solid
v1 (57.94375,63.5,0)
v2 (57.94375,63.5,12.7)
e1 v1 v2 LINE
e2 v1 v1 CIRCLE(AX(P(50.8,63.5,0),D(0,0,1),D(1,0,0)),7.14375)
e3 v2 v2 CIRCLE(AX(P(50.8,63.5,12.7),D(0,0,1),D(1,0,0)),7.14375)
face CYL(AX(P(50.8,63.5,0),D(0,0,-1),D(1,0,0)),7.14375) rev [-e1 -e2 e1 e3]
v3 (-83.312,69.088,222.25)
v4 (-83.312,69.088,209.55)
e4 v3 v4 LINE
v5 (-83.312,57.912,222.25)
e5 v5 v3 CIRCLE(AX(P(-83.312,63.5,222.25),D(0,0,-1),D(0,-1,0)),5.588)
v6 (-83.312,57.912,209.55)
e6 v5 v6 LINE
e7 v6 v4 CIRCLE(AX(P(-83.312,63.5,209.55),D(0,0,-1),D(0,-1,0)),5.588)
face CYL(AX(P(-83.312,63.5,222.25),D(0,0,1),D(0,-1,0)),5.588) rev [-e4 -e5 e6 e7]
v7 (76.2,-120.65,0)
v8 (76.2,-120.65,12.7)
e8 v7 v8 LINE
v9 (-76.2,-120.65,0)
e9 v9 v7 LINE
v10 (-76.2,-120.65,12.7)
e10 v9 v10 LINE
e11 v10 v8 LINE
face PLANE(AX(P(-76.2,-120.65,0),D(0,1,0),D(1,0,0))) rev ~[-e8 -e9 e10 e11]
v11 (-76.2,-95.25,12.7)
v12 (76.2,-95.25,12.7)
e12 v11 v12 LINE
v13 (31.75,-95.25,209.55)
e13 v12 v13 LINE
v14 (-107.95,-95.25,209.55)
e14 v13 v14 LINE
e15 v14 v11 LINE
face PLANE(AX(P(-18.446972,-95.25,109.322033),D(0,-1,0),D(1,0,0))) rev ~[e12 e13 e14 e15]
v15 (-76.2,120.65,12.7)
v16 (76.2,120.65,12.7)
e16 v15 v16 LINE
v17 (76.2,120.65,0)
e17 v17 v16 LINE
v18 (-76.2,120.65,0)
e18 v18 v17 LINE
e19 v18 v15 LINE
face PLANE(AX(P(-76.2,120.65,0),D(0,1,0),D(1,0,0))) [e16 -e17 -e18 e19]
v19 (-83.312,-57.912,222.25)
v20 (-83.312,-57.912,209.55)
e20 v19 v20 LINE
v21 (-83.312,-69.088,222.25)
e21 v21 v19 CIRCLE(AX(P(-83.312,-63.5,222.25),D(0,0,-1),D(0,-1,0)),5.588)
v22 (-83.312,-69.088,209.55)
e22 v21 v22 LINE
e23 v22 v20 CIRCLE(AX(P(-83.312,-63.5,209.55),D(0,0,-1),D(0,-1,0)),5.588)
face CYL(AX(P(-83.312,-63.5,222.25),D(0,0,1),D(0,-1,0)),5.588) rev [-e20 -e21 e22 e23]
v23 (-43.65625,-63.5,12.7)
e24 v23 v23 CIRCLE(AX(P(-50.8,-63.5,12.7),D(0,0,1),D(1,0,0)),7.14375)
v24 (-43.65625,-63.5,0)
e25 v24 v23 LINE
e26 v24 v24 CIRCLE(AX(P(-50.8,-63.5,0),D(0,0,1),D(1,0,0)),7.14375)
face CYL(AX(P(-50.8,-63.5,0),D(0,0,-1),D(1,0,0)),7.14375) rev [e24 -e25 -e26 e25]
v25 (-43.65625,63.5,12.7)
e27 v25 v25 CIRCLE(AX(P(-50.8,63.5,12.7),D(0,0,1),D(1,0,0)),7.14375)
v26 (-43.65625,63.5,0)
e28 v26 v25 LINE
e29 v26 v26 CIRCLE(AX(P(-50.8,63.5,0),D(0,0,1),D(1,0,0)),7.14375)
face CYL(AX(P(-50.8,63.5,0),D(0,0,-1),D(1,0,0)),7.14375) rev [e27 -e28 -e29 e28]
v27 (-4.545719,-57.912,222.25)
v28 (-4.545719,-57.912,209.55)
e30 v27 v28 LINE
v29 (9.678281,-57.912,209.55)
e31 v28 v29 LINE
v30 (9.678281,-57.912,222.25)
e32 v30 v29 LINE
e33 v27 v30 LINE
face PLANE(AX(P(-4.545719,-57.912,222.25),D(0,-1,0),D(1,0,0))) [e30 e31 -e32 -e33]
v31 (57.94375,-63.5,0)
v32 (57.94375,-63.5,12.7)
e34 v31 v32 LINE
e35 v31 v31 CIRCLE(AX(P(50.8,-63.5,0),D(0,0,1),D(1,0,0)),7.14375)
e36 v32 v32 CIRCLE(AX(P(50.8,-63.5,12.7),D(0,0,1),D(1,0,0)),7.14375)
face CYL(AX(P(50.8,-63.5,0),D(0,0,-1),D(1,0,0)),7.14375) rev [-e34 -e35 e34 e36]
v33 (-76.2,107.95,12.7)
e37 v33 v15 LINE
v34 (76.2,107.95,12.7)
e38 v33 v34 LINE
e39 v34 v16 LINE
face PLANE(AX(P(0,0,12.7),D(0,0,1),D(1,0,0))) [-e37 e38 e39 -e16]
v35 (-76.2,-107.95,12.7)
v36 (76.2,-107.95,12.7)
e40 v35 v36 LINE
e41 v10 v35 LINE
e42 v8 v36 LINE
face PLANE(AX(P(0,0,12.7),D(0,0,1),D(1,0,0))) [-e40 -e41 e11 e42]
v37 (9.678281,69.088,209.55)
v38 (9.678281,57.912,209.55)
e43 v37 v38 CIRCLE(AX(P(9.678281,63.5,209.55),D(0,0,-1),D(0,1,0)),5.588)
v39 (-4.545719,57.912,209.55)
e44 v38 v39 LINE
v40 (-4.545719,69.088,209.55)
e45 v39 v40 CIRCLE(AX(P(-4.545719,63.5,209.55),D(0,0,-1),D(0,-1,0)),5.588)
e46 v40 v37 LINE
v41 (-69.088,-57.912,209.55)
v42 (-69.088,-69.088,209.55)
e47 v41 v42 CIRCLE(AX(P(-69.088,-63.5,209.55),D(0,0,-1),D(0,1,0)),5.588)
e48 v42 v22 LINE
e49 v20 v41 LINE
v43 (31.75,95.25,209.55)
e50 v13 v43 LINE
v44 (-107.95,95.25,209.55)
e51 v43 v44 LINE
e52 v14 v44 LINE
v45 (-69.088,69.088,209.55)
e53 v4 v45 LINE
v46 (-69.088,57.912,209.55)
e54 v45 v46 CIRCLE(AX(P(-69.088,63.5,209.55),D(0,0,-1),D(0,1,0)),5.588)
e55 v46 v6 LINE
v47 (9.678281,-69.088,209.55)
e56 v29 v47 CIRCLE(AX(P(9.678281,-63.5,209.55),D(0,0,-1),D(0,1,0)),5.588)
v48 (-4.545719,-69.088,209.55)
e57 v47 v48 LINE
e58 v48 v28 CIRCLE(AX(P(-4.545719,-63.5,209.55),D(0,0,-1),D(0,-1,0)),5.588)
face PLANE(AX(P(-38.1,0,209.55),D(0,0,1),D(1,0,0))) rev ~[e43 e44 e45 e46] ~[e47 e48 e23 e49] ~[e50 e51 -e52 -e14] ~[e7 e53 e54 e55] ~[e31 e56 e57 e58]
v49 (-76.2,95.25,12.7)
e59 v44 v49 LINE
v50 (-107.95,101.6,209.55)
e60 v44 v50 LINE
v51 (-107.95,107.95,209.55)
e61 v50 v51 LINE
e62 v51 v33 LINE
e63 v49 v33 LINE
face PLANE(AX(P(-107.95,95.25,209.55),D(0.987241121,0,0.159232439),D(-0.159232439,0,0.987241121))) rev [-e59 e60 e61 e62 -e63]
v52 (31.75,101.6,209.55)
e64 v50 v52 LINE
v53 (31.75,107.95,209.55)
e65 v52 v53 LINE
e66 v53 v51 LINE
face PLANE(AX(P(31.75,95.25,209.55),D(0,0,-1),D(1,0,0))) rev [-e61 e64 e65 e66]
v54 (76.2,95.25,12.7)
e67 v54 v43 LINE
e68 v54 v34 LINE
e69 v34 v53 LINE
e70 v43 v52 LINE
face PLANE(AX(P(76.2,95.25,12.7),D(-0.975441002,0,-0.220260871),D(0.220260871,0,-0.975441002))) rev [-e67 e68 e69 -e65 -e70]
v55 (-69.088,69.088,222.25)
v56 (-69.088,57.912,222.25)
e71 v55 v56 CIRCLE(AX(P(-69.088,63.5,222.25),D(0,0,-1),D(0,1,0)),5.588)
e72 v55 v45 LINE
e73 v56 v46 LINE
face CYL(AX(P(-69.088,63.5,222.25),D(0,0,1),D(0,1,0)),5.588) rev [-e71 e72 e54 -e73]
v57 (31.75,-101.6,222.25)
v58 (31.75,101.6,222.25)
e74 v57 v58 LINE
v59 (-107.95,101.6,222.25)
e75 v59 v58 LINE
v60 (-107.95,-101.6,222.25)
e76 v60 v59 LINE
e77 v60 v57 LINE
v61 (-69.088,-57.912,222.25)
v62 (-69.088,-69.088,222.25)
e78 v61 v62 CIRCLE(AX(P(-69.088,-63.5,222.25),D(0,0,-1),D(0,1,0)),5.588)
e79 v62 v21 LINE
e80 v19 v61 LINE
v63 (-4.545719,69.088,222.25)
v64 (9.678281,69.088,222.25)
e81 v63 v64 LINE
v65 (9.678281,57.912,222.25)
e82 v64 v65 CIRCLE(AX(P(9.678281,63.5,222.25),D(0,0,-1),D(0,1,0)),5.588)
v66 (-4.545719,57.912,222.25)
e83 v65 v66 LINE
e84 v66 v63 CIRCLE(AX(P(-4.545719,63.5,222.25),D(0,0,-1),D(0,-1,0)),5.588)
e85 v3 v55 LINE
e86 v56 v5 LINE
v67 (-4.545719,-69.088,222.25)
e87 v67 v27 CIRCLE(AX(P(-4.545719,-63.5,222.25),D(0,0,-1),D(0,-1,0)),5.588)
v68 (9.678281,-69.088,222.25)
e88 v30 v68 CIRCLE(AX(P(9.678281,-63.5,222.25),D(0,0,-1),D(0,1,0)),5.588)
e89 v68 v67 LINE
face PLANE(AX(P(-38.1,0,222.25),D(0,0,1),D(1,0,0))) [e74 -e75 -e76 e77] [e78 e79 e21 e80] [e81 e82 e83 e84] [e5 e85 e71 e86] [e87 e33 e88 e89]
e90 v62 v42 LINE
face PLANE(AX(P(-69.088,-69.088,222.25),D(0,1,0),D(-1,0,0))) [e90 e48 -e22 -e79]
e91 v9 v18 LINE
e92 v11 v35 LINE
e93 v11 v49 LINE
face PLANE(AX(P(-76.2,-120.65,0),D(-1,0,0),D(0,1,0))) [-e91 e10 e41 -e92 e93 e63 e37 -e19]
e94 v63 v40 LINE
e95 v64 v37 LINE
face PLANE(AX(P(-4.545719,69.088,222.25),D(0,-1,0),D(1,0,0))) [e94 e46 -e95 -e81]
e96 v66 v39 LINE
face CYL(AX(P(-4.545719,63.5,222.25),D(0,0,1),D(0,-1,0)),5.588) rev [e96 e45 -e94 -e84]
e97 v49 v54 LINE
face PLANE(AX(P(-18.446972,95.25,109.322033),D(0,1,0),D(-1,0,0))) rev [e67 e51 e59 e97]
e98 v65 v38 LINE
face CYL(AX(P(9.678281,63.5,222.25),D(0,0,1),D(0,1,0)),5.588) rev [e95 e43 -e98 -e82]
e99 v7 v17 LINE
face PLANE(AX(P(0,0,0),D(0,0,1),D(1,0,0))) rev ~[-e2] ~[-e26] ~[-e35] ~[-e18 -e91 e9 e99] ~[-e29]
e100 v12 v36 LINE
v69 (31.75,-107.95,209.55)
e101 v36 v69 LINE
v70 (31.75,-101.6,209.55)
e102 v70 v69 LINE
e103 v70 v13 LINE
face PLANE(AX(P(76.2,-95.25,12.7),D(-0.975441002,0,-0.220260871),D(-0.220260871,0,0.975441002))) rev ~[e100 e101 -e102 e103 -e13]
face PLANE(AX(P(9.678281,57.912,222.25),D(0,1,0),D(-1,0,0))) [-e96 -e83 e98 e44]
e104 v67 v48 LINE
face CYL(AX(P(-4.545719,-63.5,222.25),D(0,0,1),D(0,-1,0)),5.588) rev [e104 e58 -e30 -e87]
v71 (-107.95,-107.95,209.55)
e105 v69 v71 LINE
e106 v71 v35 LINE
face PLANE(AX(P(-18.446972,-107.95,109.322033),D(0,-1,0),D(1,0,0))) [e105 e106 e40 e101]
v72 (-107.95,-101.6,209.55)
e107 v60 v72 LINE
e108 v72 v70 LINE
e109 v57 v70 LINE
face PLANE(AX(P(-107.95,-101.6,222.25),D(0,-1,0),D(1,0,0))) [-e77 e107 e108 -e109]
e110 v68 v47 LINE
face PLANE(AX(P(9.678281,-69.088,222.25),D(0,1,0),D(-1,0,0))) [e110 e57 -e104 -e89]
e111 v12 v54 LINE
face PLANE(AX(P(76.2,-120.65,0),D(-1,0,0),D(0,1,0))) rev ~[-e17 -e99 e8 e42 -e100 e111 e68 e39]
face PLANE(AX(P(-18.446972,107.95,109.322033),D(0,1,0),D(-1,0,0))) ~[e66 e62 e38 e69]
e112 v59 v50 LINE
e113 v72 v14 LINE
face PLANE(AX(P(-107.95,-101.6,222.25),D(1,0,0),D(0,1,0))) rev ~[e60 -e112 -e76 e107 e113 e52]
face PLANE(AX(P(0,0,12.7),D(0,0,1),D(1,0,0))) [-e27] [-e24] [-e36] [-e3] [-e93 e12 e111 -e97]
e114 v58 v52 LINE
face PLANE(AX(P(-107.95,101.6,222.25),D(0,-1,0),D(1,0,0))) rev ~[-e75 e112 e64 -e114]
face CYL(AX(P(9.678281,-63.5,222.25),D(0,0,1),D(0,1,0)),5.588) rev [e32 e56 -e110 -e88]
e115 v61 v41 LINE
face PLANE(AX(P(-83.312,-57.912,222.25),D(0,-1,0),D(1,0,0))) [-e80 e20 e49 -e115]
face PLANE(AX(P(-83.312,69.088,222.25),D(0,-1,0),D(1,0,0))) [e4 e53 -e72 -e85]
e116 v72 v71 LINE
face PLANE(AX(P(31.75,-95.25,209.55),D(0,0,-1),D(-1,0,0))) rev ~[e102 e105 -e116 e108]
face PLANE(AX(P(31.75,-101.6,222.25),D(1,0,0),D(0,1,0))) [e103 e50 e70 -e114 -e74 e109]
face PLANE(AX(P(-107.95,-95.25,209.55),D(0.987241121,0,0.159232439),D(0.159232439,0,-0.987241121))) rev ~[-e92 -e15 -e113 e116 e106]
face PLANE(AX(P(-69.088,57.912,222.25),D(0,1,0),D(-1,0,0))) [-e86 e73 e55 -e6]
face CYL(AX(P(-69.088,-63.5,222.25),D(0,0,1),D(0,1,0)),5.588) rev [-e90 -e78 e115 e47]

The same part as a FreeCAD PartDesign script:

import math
import FreeCAD as App
import Part
import Sketcher
from FreeCAD import Vector
Q = App.Units.Quantity

doc = App.newDocument("Part")
body = doc.addObject("PartDesign::Body", "Body")

# Sketch on XY plane
sketch1 = body.newObject("Sketcher::SketchObject", "Sketch")
sketch1.AttachmentSupport = (doc.getObject("XY_Plane"), [""])
sketch1.MapMode = "FlatFace"
sketch1.addGeometry([
    Part.LineSegment(Vector(-76, 121, 0), Vector(-76, -121, 0)),  # 0
    Part.LineSegment(Vector(-76, -121, 0), Vector(76, -121, 0)),  # 1
    Part.LineSegment(Vector(76, -121, 0), Vector(76, 121, 0)),  # 2
    Part.LineSegment(Vector(76, 121, 0), Vector(-76, 121, 0)),  # 3
    Part.Circle(Vector(-51, -64, 0), Vector(0, 0, 1), 7),  # 4
    Part.Circle(Vector(51, -64, 0), Vector(0, 0, 1), 7),  # 5
    Part.Circle(Vector(-51, 64, 0), Vector(0, 0, 1), 7),  # 6
    Part.Circle(Vector(51, 64, 0), Vector(0, 0, 1), 7),  # 7
], False)
sketch1.addConstraint([
    Sketcher.Constraint("Coincident", 0, 2, 1, 1),
    Sketcher.Constraint("Coincident", 1, 2, 2, 1),
    Sketcher.Constraint("Coincident", 2, 2, 3, 1),
    Sketcher.Constraint("Coincident", 3, 2, 0, 1),
    Sketcher.Constraint("Vertical", 0),
    Sketcher.Constraint("Horizontal", 1),
    Sketcher.Constraint("Vertical", 2),
    Sketcher.Constraint("Horizontal", 3),
    Sketcher.Constraint("Equal", 4, 5),
    Sketcher.Constraint("Equal", 5, 6),
    Sketcher.Constraint("Equal", 6, 7),
    Sketcher.Constraint("Symmetric", 5, 3, 6, 3, -1, 1),
    Sketcher.Constraint("Symmetric", 4, 3, 7, 3, -1, 1),
    Sketcher.Constraint("Symmetric", 0, 2, 2, 2, -1, 1),
    Sketcher.Constraint("Symmetric", 4, 3, 5, 3, -2),
    Sketcher.Constraint("DistanceX", 1, 1, 1, 2, Q("6 in")),
    Sketcher.Constraint("Diameter", 4, Q("0.5625 in")),
    Sketcher.Constraint("DistanceY", 0, 2, 0, 1, Q("9.5 in")),
    Sketcher.Constraint("DistanceX", 4, 3, -1, 1, Q("2 in")),
    Sketcher.Constraint("DistanceY", 4, 3, 6, 3, Q("5 in")),
])
pad1 = body.newObject("PartDesign::Pad", "Pad")
pad1.Profile = sketch1
pad1.Length = Q("0.5 in")
body2 = doc.addObject("PartDesign::Body", "Body001")

# Sketch on XY plane
sketch2 = body2.newObject("Sketcher::SketchObject", "Sketch001")
sketch2.AttachmentSupport = (doc.getObject("XY_Plane001"), [""])
sketch2.MapMode = "FlatFace"
sketch2.AttachmentOffset = App.Placement(Vector(0, 0, 8.75 * 25.4), App.Rotation())
sketch2.addGeometry([
    Part.LineSegment(Vector(-108, 102, 0), Vector(-108, -102, 0)),  # 0
    Part.LineSegment(Vector(-108, -102, 0), Vector(32, -102, 0)),  # 1
    Part.LineSegment(Vector(32, -102, 0), Vector(32, 102, 0)),  # 2
    Part.LineSegment(Vector(32, 102, 0), Vector(-108, 102, 0)),  # 3
    Part.LineSegment(Vector(-69, -69, 0), Vector(-83, -69, 0)),  # 4
    Part.ArcOfCircle(Part.Circle(Vector(-83, -64, 0), Vector(0, 0, 1), 6), math.radians(90), math.radians(270)),  # 5
    Part.LineSegment(Vector(-83, -58, 0), Vector(-69, -58, 0)),  # 6
    Part.ArcOfCircle(Part.Circle(Vector(-69, -64, 0), Vector(0, 0, 1), 6), math.radians(-90), math.radians(90)),  # 7
    Part.LineSegment(Vector(10, -69, 0), Vector(-5, -69, 0)),  # 8
    Part.ArcOfCircle(Part.Circle(Vector(-5, -64, 0), Vector(0, 0, 1), 6), math.radians(90), math.radians(270)),  # 9
    Part.LineSegment(Vector(-5, -58, 0), Vector(10, -58, 0)),  # 10
    Part.ArcOfCircle(Part.Circle(Vector(10, -64, 0), Vector(0, 0, 1), 6), math.radians(-90), math.radians(90)),  # 11
    Part.ArcOfCircle(Part.Circle(Vector(-69, 64, 0), Vector(0, 0, 1), 6), math.radians(-90), math.radians(90)),  # 12
    Part.LineSegment(Vector(-69, 58, 0), Vector(-83, 58, 0)),  # 13
    Part.ArcOfCircle(Part.Circle(Vector(-83, 64, 0), Vector(0, 0, 1), 6), math.radians(90), math.radians(270)),  # 14
    Part.LineSegment(Vector(-83, 69, 0), Vector(-69, 69, 0)),  # 15
    Part.ArcOfCircle(Part.Circle(Vector(10, 64, 0), Vector(0, 0, 1), 6), math.radians(-90), math.radians(90)),  # 16
    Part.LineSegment(Vector(10, 58, 0), Vector(-5, 58, 0)),  # 17
    Part.ArcOfCircle(Part.Circle(Vector(-5, 64, 0), Vector(0, 0, 1), 6), math.radians(90), math.radians(270)),  # 18
    Part.LineSegment(Vector(-5, 69, 0), Vector(10, 69, 0)),  # 19
], False)
sketch2.addConstraint([
    Sketcher.Constraint("Coincident", 0, 2, 1, 1),
    Sketcher.Constraint("Coincident", 1, 2, 2, 1),
    Sketcher.Constraint("Coincident", 2, 2, 3, 1),
    Sketcher.Constraint("Coincident", 3, 2, 0, 1),
    Sketcher.Constraint("Tangent", 4, 2, 5, 2),
    Sketcher.Constraint("Tangent", 5, 1, 6, 1),
    Sketcher.Constraint("Tangent", 6, 2, 7, 2),
    Sketcher.Constraint("Tangent", 7, 1, 4, 1),
    Sketcher.Constraint("Tangent", 8, 2, 9, 2),
    Sketcher.Constraint("Tangent", 9, 1, 10, 1),
    Sketcher.Constraint("Tangent", 10, 2, 11, 2),
    Sketcher.Constraint("Tangent", 11, 1, 8, 1),
    Sketcher.Constraint("Tangent", 12, 1, 13, 1),
    Sketcher.Constraint("Tangent", 13, 2, 14, 2),
    Sketcher.Constraint("Tangent", 14, 1, 15, 1),
    Sketcher.Constraint("Tangent", 15, 2, 12, 2),
    Sketcher.Constraint("Tangent", 16, 1, 17, 1),
    Sketcher.Constraint("Tangent", 17, 2, 18, 2),
    Sketcher.Constraint("Tangent", 18, 1, 19, 1),
    Sketcher.Constraint("Tangent", 19, 2, 16, 2),
    Sketcher.Constraint("Vertical", 0),
    Sketcher.Constraint("Horizontal", 1),
    Sketcher.Constraint("Vertical", 2),
    Sketcher.Constraint("Horizontal", 3),
    Sketcher.Constraint("Horizontal", 4),
    Sketcher.Constraint("Horizontal", 6),
    Sketcher.Constraint("Horizontal", 8),
    Sketcher.Constraint("Horizontal", 10),
    Sketcher.Constraint("Horizontal", 13),
    Sketcher.Constraint("Horizontal", 15),
    Sketcher.Constraint("Horizontal", 17),
    Sketcher.Constraint("Horizontal", 19),
    Sketcher.Constraint("Equal", 7, 9),
    Sketcher.Constraint("Equal", 11, 12),
    Sketcher.Constraint("Equal", 14, 16),
    Sketcher.Constraint("Symmetric", 7, 3, 12, 3, -1),
    Sketcher.Constraint("Symmetric", 11, 3, 16, 3, -1),
    Sketcher.Constraint("Horizontal", 7, 3, 9, 3),
    Sketcher.Constraint("Vertical", 5, 3, 14, 3),
    Sketcher.Constraint("Vertical", 9, 3, 18, 3),
    Sketcher.Constraint("Equal", 6, 8),
    Sketcher.Constraint("DistanceY", 0, 2, 0, 1, Q("8 in")),
    Sketcher.Constraint("Radius", 5, Q("0.22 in")),
    Sketcher.Constraint("DistanceX", 1, 1, 1, 2, Q("5.5 in")),
    Sketcher.Constraint("DistanceY", 0, 2, -1, 1, Q("4 in")),
    Sketcher.Constraint("DistanceY", 7, 3, 12, 3, Q("5 in")),
    Sketcher.Constraint("DistanceX", 4, 2, 4, 1, Q("0.56 in")),
    Sketcher.Constraint("DistanceX", 5, 3, -1, 1, Q("3.28 in")),
    Sketcher.Constraint("DistanceX", 0, 2, -1, 1, Q("4.25 in")),
    Sketcher.Constraint("DistanceX", 9, 3, -1, 1, 4.545719),
])
pad2 = body2.newObject("PartDesign::Pad", "Pad001")
pad2.Profile = sketch2
pad2.Length = Q("0.5 in")
pad2.Reversed = True
body.AllowCompound = True
doc.recompute()

boolean = body.newObject("PartDesign::Boolean", "Boolean")
boolean.Type = "Fuse"
boolean.addObjects([body2])

# Sketch on XZ plane
sketch3 = body.newObject("Sketcher::SketchObject", "Sketch002")
sketch3.AttachmentSupport = (doc.getObject("XZ_Plane"), [""])
sketch3.MapMode = "FlatFace"
sketch3.AttachmentOffset = App.Placement(Vector(0, 0, 3.75 * 25.4), App.Rotation())
sketch3.addGeometry([
    Part.LineSegment(Vector(32, 210, 0), Vector(-108, 210, 0)),
    Part.LineSegment(Vector(-108, 210, 0), Vector(-76, 13, 0)),
    Part.LineSegment(Vector(-76, 13, 0), Vector(76, 13, 0)),
    Part.LineSegment(Vector(76, 13, 0), Vector(32, 210, 0)),
], False)
sketch3.addConstraint([
    Sketcher.Constraint("Coincident", 0, 2, 1, 1),
    Sketcher.Constraint("Coincident", 1, 2, 2, 1),
    Sketcher.Constraint("Coincident", 2, 2, 3, 1),
    Sketcher.Constraint("Coincident", 3, 2, 0, 1),
    Sketcher.Constraint("Horizontal", 0),
    Sketcher.Constraint("Horizontal", 2),
    Sketcher.Constraint("DistanceX", 2, 1, 2, 2, Q("6 in")),
    Sketcher.Constraint("DistanceX", 0, 2, 0, 1, Q("5.5 in")),
    Sketcher.Constraint("DistanceX", 1, 2, -1, 1, Q("3 in")),
    Sketcher.Constraint("DistanceY", -1, 1, 1, 2, Q("0.5 in")),
    Sketcher.Constraint("DistanceX", 0, 2, -1, 1, Q("4.25 in")),
    Sketcher.Constraint("DistanceY", -1, 1, 0, 2, Q("8.25 in")),
])
pad3 = body.newObject("PartDesign::Pad", "Pad002")
pad3.Profile = sketch3
pad3.Length = Q("0.5 in")
body3 = doc.addObject("PartDesign::Body", "Body002")
doc.recompute()

body3.BaseFeature = body
doc.recompute()

mirroring = doc.addObject("Part::Mirroring", "Mirroring")
mirroring.Source = body
mirroring.Base = Vector(0, 0, 0)
mirroring.Normal = Vector(0, -1, 0)
body4 = doc.addObject("PartDesign::Body", "Body003")
body4.BaseFeature = mirroring
boolean2 = body3.newObject("PartDesign::Boolean", "Boolean001")
boolean2.Type = "Fuse"
boolean2.addObjects([body4])
doc.recompute()
mirroring.Visibility = False

doc.recompute()
